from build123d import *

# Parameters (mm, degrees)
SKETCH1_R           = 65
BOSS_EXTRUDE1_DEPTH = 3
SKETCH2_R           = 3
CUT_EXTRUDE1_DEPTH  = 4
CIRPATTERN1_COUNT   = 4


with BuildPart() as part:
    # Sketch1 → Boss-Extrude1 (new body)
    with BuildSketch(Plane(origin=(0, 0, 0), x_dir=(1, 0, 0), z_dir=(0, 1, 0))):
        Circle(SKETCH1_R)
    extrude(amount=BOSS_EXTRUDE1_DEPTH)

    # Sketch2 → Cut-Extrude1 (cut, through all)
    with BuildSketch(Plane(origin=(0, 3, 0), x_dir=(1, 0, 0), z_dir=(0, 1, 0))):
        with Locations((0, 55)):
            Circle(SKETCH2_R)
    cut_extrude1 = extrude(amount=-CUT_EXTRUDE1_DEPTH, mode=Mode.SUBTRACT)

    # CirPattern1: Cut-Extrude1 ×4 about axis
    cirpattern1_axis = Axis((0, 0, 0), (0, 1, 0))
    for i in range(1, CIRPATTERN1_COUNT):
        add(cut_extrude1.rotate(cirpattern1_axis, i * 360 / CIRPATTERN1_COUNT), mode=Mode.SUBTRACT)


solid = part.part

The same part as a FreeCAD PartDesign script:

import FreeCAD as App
import Part
import Sketcher

V = App.Vector
Q = App.Units.Quantity

doc = App.newDocument("Part")
body = doc.addObject("PartDesign::Body", "Body")

sketch1 = body.newObject("Sketcher::SketchObject", "Sketch")
sketch1.AttachmentSupport = (doc.getObject("XZ_Plane"), [""])
sketch1.MapMode = "FlatFace"
sketch1.addGeometry(Part.Circle(V(0, 0, 0), V(0, 0, 1), 65), False)
sketch1.addConstraint(Sketcher.Constraint("Coincident", 0, 3, -1, 1))
sketch1.addConstraint(Sketcher.Constraint("Diameter", 0, Q("130 mm")))
pad1 = body.newObject("PartDesign::Pad", "Pad")
pad1.Profile = sketch1
pad1.Length = 3
pad1.Reversed = True

sketch2 = body.newObject("Sketcher::SketchObject", "Sketch001")
sketch2.AttachmentSupport = (doc.getObject("XZ_Plane"), [""])
sketch2.MapMode = "FlatFace"
sketch2.AttachmentOffset = App.Placement(V(0, 0, -3), App.Rotation())
sketch2.addGeometry(Part.Circle(V(0, -55, 0), V(0, 0, 1), 3), False)
sketch2.addConstraint(Sketcher.Constraint("PointOnObject", 0, 3, -2))
sketch2.addConstraint(Sketcher.Constraint("Diameter", 0, Q("6 mm")))
sketch2.addConstraint(Sketcher.Constraint("DistanceY", 0, 3, -1, 1, Q("55 mm")))
pocket1 = body.newObject("PartDesign::Pocket", "Pocket")
pocket1.Profile = sketch2
pocket1.Type = "ThroughAll"
pocket1.Reversed = True
doc.recompute()

polarpattern = body.newObject("PartDesign::PolarPattern", "PolarPattern")
polarpattern.Originals = [pocket1]
polarpattern.Axis = (doc.getObject("Y_Axis"), [""])
polarpattern.Angle = 360
polarpattern.Occurrences = 4
body.Tip = polarpattern

doc.recompute()
